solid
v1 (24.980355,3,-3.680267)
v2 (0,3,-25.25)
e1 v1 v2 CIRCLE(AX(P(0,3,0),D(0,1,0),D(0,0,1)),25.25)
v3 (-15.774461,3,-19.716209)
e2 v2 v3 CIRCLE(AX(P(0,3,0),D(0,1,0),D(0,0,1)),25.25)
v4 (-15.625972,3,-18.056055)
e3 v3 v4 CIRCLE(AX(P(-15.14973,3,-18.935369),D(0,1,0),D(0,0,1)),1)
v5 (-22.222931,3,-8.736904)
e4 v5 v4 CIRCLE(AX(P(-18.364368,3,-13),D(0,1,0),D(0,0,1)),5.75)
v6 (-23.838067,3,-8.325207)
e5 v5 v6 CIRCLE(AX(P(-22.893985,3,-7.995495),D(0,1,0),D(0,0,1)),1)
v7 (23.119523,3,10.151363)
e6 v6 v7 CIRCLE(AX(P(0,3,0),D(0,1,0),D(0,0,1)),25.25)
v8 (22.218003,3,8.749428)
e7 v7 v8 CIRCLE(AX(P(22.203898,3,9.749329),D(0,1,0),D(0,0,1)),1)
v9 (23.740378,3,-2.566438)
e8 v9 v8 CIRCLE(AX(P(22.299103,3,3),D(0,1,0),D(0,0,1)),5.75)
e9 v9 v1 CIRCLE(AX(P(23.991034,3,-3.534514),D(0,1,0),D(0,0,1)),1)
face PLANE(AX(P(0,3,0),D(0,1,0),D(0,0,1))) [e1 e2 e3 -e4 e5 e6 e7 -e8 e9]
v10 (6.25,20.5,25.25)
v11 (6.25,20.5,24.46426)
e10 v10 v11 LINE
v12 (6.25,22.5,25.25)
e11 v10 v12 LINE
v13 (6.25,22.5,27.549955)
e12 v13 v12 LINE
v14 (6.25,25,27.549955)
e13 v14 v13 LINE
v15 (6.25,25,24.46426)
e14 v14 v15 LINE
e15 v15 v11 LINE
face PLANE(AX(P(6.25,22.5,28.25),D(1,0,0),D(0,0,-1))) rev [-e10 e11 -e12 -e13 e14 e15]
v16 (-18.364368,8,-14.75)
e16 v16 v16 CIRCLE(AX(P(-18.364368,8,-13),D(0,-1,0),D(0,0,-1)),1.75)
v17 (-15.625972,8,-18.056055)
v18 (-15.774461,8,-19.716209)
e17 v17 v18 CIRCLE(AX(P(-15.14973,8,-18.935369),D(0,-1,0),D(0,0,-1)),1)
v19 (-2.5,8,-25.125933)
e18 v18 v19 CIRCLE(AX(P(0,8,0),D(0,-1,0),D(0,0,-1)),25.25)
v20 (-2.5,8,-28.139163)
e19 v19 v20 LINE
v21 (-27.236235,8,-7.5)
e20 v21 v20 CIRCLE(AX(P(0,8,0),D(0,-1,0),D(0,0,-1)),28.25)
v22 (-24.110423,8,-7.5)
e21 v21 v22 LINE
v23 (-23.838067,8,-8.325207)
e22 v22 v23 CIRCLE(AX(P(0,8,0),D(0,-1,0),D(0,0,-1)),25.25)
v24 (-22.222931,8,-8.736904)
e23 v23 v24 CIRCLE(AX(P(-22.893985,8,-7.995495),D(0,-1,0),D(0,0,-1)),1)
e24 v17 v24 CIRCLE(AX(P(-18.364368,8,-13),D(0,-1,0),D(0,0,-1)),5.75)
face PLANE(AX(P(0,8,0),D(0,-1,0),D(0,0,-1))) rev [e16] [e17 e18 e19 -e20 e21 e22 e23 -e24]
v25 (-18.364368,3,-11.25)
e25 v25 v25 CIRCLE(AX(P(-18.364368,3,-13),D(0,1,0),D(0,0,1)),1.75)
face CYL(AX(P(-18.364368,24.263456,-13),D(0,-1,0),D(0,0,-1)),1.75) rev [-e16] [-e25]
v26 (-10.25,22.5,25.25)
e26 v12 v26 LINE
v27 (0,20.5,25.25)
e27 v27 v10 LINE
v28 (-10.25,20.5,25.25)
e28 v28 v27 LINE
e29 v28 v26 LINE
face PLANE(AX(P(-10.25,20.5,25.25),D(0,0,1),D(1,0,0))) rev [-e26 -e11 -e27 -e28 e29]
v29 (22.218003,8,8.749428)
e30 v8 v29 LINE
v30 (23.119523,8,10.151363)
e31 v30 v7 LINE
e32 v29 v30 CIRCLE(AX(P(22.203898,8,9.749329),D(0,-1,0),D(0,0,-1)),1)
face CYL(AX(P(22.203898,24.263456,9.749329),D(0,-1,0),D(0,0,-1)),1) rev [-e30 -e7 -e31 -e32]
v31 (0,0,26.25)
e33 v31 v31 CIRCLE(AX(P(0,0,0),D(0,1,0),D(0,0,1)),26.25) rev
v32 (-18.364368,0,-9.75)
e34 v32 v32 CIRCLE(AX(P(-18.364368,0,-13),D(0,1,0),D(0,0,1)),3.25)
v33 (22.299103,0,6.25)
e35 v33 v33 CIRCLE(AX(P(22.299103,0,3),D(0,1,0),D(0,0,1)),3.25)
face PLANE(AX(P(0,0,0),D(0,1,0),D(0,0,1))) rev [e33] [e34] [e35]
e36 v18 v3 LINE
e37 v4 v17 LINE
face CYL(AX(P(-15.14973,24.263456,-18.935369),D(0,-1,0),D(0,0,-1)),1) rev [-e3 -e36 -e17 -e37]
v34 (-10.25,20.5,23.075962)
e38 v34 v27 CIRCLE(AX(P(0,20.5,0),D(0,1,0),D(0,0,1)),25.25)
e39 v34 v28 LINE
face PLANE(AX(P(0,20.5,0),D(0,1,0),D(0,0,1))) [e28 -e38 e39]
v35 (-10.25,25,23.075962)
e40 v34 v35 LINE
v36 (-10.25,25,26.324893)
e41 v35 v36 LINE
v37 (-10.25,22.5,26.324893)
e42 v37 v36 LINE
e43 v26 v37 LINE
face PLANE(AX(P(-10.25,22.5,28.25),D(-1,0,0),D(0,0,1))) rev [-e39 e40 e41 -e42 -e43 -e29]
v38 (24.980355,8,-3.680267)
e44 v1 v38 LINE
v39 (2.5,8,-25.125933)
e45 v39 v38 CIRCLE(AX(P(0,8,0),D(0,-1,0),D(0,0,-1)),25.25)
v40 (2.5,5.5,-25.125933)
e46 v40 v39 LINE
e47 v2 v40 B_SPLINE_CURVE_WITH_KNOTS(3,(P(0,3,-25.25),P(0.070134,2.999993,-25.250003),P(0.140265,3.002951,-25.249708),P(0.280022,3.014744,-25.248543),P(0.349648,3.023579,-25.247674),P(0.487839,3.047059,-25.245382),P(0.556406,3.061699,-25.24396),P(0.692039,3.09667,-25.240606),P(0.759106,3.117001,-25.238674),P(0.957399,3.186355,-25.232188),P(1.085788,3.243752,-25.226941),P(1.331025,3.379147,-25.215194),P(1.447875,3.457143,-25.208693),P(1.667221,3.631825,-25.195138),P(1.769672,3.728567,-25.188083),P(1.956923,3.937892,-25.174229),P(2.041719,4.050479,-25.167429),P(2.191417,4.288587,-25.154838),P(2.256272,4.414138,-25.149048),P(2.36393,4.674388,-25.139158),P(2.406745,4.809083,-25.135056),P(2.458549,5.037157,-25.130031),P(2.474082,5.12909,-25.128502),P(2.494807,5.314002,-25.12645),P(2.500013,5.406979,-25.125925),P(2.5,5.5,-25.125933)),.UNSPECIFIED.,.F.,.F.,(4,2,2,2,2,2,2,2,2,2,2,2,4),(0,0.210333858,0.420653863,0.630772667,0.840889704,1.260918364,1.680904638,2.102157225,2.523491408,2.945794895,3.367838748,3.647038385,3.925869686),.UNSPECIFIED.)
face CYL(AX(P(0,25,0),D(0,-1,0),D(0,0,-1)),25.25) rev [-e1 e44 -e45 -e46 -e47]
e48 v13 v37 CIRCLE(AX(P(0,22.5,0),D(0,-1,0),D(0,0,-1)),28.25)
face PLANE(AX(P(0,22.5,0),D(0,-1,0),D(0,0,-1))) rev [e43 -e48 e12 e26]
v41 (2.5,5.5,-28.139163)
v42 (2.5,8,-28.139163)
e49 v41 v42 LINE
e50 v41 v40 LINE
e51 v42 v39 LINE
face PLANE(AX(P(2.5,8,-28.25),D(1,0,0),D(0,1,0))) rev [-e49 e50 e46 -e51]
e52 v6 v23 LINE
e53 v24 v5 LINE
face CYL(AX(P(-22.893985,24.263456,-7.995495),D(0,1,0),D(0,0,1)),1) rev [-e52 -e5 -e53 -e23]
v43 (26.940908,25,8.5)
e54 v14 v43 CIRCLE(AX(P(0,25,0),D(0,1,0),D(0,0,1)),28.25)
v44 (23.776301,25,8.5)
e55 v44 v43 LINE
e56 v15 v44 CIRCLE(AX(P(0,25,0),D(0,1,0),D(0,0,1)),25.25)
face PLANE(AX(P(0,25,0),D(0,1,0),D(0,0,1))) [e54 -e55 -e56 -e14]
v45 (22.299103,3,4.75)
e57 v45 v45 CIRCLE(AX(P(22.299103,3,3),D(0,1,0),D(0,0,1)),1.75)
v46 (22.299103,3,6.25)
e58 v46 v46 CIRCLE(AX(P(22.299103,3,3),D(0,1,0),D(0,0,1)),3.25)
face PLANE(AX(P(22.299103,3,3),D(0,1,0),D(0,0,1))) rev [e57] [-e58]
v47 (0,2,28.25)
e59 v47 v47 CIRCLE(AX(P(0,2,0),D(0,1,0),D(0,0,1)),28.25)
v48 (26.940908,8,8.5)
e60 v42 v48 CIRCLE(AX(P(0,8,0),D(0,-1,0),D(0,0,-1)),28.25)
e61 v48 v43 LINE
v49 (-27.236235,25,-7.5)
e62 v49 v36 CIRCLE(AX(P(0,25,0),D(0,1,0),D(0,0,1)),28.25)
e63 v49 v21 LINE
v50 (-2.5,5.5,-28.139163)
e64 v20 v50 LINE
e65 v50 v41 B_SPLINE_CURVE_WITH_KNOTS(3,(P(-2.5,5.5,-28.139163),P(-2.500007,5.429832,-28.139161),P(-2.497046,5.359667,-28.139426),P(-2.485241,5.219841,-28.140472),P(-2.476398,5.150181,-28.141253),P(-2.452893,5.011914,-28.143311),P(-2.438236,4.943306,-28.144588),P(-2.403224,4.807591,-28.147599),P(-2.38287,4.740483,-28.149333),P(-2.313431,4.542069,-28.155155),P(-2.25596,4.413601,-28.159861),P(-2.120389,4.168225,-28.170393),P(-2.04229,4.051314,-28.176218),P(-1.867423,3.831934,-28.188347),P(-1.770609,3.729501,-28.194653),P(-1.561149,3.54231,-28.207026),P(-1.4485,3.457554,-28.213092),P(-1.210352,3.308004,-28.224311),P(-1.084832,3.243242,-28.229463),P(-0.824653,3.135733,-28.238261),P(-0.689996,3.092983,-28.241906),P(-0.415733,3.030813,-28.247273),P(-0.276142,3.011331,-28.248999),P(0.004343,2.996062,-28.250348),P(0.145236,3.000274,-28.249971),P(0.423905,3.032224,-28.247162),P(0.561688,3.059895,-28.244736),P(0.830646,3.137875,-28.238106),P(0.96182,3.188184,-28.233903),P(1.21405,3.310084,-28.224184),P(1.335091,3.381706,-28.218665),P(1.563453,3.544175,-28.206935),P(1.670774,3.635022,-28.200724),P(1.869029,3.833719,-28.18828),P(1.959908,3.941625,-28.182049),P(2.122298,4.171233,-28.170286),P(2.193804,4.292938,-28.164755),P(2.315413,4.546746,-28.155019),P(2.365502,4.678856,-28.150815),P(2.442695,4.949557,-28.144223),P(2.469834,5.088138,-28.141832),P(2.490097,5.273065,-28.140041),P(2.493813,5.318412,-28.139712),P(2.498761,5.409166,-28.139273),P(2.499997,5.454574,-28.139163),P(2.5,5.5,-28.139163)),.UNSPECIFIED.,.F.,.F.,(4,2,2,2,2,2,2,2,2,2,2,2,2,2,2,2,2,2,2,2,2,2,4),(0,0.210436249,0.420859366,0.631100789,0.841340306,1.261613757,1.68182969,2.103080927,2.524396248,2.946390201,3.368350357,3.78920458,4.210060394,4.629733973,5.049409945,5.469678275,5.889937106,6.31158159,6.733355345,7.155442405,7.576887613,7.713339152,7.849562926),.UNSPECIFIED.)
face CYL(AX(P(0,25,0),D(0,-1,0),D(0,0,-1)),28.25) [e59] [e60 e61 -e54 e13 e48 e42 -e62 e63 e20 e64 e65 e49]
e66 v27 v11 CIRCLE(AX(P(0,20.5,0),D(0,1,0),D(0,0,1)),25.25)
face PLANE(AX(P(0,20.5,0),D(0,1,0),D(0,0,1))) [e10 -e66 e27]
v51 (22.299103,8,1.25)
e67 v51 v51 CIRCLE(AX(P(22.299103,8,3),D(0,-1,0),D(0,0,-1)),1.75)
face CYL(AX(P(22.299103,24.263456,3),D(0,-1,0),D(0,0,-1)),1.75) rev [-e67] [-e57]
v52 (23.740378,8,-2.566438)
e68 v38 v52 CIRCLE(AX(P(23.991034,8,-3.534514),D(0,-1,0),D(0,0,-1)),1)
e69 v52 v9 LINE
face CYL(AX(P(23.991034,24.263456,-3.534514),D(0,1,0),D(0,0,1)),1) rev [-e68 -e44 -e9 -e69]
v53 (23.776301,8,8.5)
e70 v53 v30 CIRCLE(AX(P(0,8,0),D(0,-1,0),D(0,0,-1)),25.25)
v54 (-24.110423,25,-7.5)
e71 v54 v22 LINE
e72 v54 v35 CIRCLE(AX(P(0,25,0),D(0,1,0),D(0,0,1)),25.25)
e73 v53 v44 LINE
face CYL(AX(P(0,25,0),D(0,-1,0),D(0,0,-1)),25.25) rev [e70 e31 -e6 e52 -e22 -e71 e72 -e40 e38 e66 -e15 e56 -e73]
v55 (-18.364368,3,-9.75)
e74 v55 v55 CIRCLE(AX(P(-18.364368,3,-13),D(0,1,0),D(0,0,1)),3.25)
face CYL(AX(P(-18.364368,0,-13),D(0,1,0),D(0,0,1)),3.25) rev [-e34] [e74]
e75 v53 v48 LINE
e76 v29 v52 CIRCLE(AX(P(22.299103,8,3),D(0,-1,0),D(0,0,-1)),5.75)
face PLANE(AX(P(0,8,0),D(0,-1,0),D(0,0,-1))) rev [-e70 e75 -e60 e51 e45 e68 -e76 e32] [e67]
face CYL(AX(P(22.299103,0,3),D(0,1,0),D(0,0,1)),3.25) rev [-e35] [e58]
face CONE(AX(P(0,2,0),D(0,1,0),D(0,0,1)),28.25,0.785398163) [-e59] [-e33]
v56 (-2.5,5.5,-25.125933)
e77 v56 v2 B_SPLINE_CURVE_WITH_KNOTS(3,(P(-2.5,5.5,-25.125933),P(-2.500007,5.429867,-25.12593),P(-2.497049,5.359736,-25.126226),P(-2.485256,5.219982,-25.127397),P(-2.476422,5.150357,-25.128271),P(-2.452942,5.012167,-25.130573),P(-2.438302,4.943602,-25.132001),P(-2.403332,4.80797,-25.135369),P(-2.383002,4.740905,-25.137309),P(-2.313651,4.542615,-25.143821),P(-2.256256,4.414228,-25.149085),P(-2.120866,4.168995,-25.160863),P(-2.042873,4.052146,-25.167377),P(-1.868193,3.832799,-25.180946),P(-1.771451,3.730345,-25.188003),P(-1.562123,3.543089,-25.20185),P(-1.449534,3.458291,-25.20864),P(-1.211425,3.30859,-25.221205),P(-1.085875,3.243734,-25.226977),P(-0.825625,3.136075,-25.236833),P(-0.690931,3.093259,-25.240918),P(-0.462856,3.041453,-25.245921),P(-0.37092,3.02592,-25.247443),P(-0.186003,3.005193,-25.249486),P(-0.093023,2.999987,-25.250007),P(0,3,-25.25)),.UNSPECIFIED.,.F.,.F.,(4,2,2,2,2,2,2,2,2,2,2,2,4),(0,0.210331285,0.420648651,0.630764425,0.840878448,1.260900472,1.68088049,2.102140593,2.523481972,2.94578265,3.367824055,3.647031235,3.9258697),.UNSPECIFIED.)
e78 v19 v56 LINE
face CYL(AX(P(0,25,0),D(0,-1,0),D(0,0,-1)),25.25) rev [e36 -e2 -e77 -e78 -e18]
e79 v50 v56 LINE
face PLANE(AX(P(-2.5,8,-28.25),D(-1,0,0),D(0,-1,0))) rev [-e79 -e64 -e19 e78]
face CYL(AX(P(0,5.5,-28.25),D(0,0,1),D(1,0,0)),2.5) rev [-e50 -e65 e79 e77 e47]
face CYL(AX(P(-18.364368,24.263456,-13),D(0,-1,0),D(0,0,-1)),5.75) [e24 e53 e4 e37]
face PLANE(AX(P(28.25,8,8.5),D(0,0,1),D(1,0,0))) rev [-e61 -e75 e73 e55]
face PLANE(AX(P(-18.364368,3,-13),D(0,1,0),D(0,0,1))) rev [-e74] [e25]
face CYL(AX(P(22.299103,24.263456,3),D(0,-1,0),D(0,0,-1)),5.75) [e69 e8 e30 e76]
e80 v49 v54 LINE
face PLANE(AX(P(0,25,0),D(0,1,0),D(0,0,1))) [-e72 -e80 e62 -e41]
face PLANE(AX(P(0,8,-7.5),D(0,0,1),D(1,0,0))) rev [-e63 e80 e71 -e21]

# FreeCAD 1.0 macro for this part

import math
import FreeCAD as App
import Part
import Sketcher

V = App.Vector


def edges_at(feature, points):
    """Names of the edges that pass closest to the given points."""
    edges = feature.Shape.Edges
    near = lambda p: min(range(len(edges)), key=lambda i: edges[i].distToShape(Part.Vertex(*p))[0])
    return sorted({f"Edge{near(p) + 1}" for p in points})


def faces_at(feature, points):
    """Names of the faces that lie closest to the given points."""
    faces = feature.Shape.Faces
    near = lambda p: min(range(len(faces)), key=lambda i: faces[i].distToShape(Part.Vertex(*p))[0])
    return sorted({f"Face{near(p) + 1}" for p in points})


def add_polygon(sketch, points):
    """Adds a closed chain of lines whose ends are joined by coincident constraints."""
    first, n = sketch.GeometryCount, len(points)
    for a, b in zip(points, points[1:] + points[:1]):
        sketch.addGeometry(Part.LineSegment(App.Vector(*a, 0), App.Vector(*b, 0)), False)
    for i in range(n):
        sketch.addConstraint(Sketcher.Constraint("Coincident", first + i, 2, first + (i + 1) % n, 1))

doc = App.newDocument("Part")
body = doc.addObject("PartDesign::Body", "Body")

sketch1 = body.newObject("Sketcher::SketchObject", "Sketch")
sketch1.AttachmentSupport = (doc.getObject("XZ_Plane"), [""])
sketch1.MapMode = "FlatFace"
sketch1.addGeometry(Part.Circle(V(0, 0, 0), V(0, 0, 1), 28), False)
sketch1.addConstraint(Sketcher.Constraint("Coincident", 0, 3, -1, 1))
sketch1.addConstraint(Sketcher.Constraint("Diameter", 0, 56.5))
pad1 = body.newObject("PartDesign::Pad", "Pad")
pad1.Profile = sketch1
pad1.Length = 25
pad1.Reversed = True
doc.recompute()

thickness = body.newObject("PartDesign::Thickness", "Thickness")
thickness.Base = (pad1, faces_at(pad1, [(0, 25, 0)]))
thickness.Value = 3
thickness.Reversed = True
thickness.Join = "Intersection"

sketch2 = body.newObject("Sketcher::SketchObject", "Sketch001")
sketch2.AttachmentSupport = (doc.getObject("XZ_Plane"), [""])
sketch2.MapMode = "FlatFace"
sketch2.AttachmentOffset = App.Placement(V(0, 0, -25), App.Rotation())
add_polygon(sketch2, [(-28, -8), (0, -8), (0, 8), (28, 8), (28, -28), (-28, -28)])
sketch2.addConstraint(Sketcher.Constraint("Horizontal", 0))
sketch2.addConstraint(Sketcher.Constraint("Vertical", 1))
sketch2.addConstraint(Sketcher.Constraint("Horizontal", 2))
sketch2.addConstraint(Sketcher.Constraint("Vertical", 3))
sketch2.addConstraint(Sketcher.Constraint("Horizontal", 4))
sketch2.addConstraint(Sketcher.Constraint("Vertical", 5))
sketch2.addConstraint(Sketcher.Constraint("PointOnObject", 0, 2, -2))
sketch2.addConstraint(Sketcher.Constraint("Equal", 0, 2))
sketch2.addConstraint(Sketcher.Constraint("DistanceY", 1, 1, 1, 2, 16.0))
sketch2.addConstraint(Sketcher.Constraint("DistanceX", 4, 2, 4, 1, 56.5))
sketch2.addConstraint(Sketcher.Constraint("DistanceY", 3, 2, 3, 1, 36.75))
sketch2.addConstraint(Sketcher.Constraint("DistanceY", 0, 2, -1, 1, 7.5))
pocket1 = body.newObject("PartDesign::Pocket", "Pocket")
pocket1.Profile = sketch2
pocket1.Length = 17
pocket1.Reversed = True

sketch3 = body.newObject("Sketcher::SketchObject", "Sketch002")
sketch3.AttachmentSupport = (doc.getObject("XZ_Plane"), [""])
sketch3.MapMode = "FlatFace"
sketch3.AttachmentOffset = App.Placement(V(0, 0, -25), App.Rotation())
add_polygon(sketch3, [(-10, 23), (-10, 28), (6, 28), (6, 23)])
sketch3.addConstraint(Sketcher.Constraint("Vertical", 0))
sketch3.addConstraint(Sketcher.Constraint("Horizontal", 1))
sketch3.addConstraint(Sketcher.Constraint("Vertical", 2))
sketch3.addConstraint(Sketcher.Constraint("Horizontal", 3))
sketch3.addConstraint(Sketcher.Constraint("DistanceX", 1, 1, 1, 2, 16.5))
sketch3.addConstraint(Sketcher.Constraint("DistanceX", 0, 2, -1, 1, 10.25))
sketch3.addConstraint(Sketcher.Constraint("DistanceY", -1, 1, 0, 2, 28.25))
sketch3.addConstraint(Sketcher.Constraint("DistanceY", 0, 1, 0, 2, 5.174038))
pocket2 = body.newObject("PartDesign::Pocket", "Pocket001")
pocket2.Profile = sketch3
pocket2.Length = 2.5
pocket2.Reversed = True

sketch4 = body.newObject("Sketcher::SketchObject", "Sketch003")
sketch4.AttachmentSupport = (doc.getObject("XY_Plane"), [""])
sketch4.MapMode = "FlatFace"
sketch4.addGeometry(Part.LineSegment(V(2.5, 5.5, 0), V(2.5, 8, 0)), False)
sketch4.addGeometry(Part.LineSegment(V(2.5, 8, 0), V(-2.5, 8, 0)), False)
sketch4.addGeometry(Part.LineSegment(V(-2.5, 8, 0), V(-2.5, 5.5, 0)), False)
sketch4.addGeometry(Part.ArcOfCircle(Part.Circle(V(0, 5.5, 0), V(0, 0, 1), 2.5), math.radians(180), math.radians(270)), False)
sketch4.addGeometry(Part.ArcOfCircle(Part.Circle(V(0, 5.5, 0), V(0, 0, 1), 2.5), math.radians(-90), math.radians(0)), False)
sketch4.addConstraint(Sketcher.Constraint("Coincident", 0, 2, 1, 1))
sketch4.addConstraint(Sketcher.Constraint("Coincident", 1, 2, 2, 1))
sketch4.addConstraint(Sketcher.Constraint("Tangent", 2, 2, 3, 1))
sketch4.addConstraint(Sketcher.Constraint("Tangent", 3, 2, 4, 1))
sketch4.addConstraint(Sketcher.Constraint("Tangent", 4, 2, 0, 1))
sketch4.addConstraint(Sketcher.Constraint("Vertical", 0))
sketch4.addConstraint(Sketcher.Constraint("Horizontal", 1))
sketch4.addConstraint(Sketcher.Constraint("Vertical", 2))
sketch4.addConstraint(Sketcher.Constraint("Equal", 3, 4))
sketch4.addConstraint(Sketcher.Constraint("PointOnObject", 3, 3, -2))
sketch4.addConstraint(Sketcher.Constraint("PointOnObject", 3, 2, -2))
sketch4.addConstraint(Sketcher.Constraint("Radius", 3, 2.5))
sketch4.addConstraint(Sketcher.Constraint("DistanceY", 0, 1, 0, 2, 2.5))
sketch4.addConstraint(Sketcher.Constraint("DistanceY", -1, 1, 0, 2, 8.0))
pocket3 = body.newObject("PartDesign::Pocket", "Pocket002")
pocket3.Profile = sketch4
pocket3.Type = "ThroughAll"

sketch5 = body.newObject("Sketcher::SketchObject", "Sketch004")
sketch5.AttachmentSupport = (doc.getObject("XZ_Plane"), [""])
sketch5.MapMode = "FlatFace"
sketch5.AttachmentOffset = App.Placement(V(0, 0, -3), App.Rotation())
sketch5.addGeometry(Part.Circle(V(-18.4, -13, 0), V(0, 0, 1), 3.2), False)
sketch5.addGeometry(Part.Circle(V(22.3, 3, 0), V(0, 0, 1), 3.2), False)
sketch5.addConstraint(Sketcher.Constraint("Equal", 0, 1))
sketch5.addConstraint(Sketcher.Constraint("Diameter", 0, 6.5))
sketch5.addConstraint(Sketcher.Constraint("DistanceY", 0, 3, -1, 1, 13.0))
sketch5.addConstraint(Sketcher.Constraint("DistanceY", -1, 1, 1, 3, 3.0))
sketch5.addConstraint(Sketcher.Constraint("DistanceX", 0, 3, 1, 3, 40.663471))
sketch5.addConstraint(Sketcher.Constraint("DistanceX", 0, 3, -1, 1, 18.364368))
pocket4 = body.newObject("PartDesign::Pocket", "Pocket003")
pocket4.Profile = sketch5
pocket4.Type = "ThroughAll"
pocket4.Reversed = True

sketch6 = body.newObject("Sketcher::SketchObject", "Sketch005")
sketch6.AttachmentSupport = (doc.getObject("XZ_Plane"), [""])
sketch6.MapMode = "FlatFace"
sketch6.AttachmentOffset = App.Placement(V(0, 0, -3), App.Rotation())
sketch6.addGeometry(Part.Circle(V(-18.4, -13, 0), V(0, 0, 1), 5.8), False)
sketch6.addGeometry(Part.Circle(V(-18.4, -13, 0), V(0, 0, 1), 1.8), False)
sketch6.addGeometry(Part.Circle(V(22.3, 3, 0), V(0, 0, 1), 5.8), False)
sketch6.addGeometry(Part.Circle(V(22.3, 3, 0), V(0, 0, 1), 1.8), False)
sketch6.addConstraint(Sketcher.Constraint("Coincident", 1, 3, 0, 3))
sketch6.addConstraint(Sketcher.Constraint("Coincident", 3, 3, 2, 3))
sketch6.addConstraint(Sketcher.Constraint("Equal", 0, 2))
sketch6.addConstraint(Sketcher.Constraint("Equal", 1, 3))
sketch6.addConstraint(Sketcher.Constraint("Diameter", 0, 11.5))
sketch6.addConstraint(Sketcher.Constraint("Diameter", 1, 3.5))
sketch6.addConstraint(Sketcher.Constraint("DistanceY", 0, 3, -1, 1, 13.0))
sketch6.addConstraint(Sketcher.Constraint("DistanceY", -1, 1, 2, 3, 3.0))
sketch6.addConstraint(Sketcher.Constraint("DistanceX", 0, 3, 2, 3, 40.663471))
sketch6.addConstraint(Sketcher.Constraint("DistanceX", 0, 3, -1, 1, 18.364368))
pad2 = body.newObject("PartDesign::Pad", "Pad001")
pad2.Profile = sketch6
pad2.Length = 5
pad2.Reversed = True
doc.recompute()

fillet = body.newObject("PartDesign::Fillet", "Fillet")
fillet.Base = (pad2, edges_at(pad2, [
    (-23.22, 5.5, -9.92),
    (-17.073, 5.5, -18.603),
    (23.754, 5.5, 8.563),
    (25.172, 5.5, -1.981),
]))
fillet.Radius = 1
doc.recompute()

chamfer = body.newObject("PartDesign::Chamfer", "Chamfer")
chamfer.Base = (fillet, edges_at(fillet, [(0, 0, -28.25)]))
chamfer.Size = 2

sketch7 = body.newObject("Sketcher::SketchObject", "Sketch006")
sketch7.AttachmentSupport = (doc.getObject("XZ_Plane"), [""])
sketch7.MapMode = "FlatFace"
sketch7.AttachmentOffset = App.Placement(V(0, 0, -22.5), App.Rotation())
add_polygon(sketch7, [(-10.2, 23.1), (-10.2, 25.2), (6.2, 25.2), (6.2, 23.1)])
sketch7.addConstraint(Sketcher.Constraint("Vertical", 0))
sketch7.addConstraint(Sketcher.Constraint("Horizontal", 1))
sketch7.addConstraint(Sketcher.Constraint("Vertical", 2))
sketch7.addConstraint(Sketcher.Constraint("Horizontal", 3))
sketch7.addConstraint(Sketcher.Constraint("DistanceX", 1, 1, 1, 2, 16.5))
sketch7.addConstraint(Sketcher.Constraint("DistanceX", 0, 2, -1, 1, 10.25))
sketch7.addConstraint(Sketcher.Constraint("DistanceY", -1, 1, 0, 2, 25.25))
sketch7.addConstraint(Sketcher.Constraint("DistanceY", 0, 1, 0, 2, 2.174038))
pocket5 = body.newObject("PartDesign::Pocket", "Pocket004")
pocket5.Profile = sketch7
pocket5.Length = 2
pocket5.Reversed = True

doc.recompute()
